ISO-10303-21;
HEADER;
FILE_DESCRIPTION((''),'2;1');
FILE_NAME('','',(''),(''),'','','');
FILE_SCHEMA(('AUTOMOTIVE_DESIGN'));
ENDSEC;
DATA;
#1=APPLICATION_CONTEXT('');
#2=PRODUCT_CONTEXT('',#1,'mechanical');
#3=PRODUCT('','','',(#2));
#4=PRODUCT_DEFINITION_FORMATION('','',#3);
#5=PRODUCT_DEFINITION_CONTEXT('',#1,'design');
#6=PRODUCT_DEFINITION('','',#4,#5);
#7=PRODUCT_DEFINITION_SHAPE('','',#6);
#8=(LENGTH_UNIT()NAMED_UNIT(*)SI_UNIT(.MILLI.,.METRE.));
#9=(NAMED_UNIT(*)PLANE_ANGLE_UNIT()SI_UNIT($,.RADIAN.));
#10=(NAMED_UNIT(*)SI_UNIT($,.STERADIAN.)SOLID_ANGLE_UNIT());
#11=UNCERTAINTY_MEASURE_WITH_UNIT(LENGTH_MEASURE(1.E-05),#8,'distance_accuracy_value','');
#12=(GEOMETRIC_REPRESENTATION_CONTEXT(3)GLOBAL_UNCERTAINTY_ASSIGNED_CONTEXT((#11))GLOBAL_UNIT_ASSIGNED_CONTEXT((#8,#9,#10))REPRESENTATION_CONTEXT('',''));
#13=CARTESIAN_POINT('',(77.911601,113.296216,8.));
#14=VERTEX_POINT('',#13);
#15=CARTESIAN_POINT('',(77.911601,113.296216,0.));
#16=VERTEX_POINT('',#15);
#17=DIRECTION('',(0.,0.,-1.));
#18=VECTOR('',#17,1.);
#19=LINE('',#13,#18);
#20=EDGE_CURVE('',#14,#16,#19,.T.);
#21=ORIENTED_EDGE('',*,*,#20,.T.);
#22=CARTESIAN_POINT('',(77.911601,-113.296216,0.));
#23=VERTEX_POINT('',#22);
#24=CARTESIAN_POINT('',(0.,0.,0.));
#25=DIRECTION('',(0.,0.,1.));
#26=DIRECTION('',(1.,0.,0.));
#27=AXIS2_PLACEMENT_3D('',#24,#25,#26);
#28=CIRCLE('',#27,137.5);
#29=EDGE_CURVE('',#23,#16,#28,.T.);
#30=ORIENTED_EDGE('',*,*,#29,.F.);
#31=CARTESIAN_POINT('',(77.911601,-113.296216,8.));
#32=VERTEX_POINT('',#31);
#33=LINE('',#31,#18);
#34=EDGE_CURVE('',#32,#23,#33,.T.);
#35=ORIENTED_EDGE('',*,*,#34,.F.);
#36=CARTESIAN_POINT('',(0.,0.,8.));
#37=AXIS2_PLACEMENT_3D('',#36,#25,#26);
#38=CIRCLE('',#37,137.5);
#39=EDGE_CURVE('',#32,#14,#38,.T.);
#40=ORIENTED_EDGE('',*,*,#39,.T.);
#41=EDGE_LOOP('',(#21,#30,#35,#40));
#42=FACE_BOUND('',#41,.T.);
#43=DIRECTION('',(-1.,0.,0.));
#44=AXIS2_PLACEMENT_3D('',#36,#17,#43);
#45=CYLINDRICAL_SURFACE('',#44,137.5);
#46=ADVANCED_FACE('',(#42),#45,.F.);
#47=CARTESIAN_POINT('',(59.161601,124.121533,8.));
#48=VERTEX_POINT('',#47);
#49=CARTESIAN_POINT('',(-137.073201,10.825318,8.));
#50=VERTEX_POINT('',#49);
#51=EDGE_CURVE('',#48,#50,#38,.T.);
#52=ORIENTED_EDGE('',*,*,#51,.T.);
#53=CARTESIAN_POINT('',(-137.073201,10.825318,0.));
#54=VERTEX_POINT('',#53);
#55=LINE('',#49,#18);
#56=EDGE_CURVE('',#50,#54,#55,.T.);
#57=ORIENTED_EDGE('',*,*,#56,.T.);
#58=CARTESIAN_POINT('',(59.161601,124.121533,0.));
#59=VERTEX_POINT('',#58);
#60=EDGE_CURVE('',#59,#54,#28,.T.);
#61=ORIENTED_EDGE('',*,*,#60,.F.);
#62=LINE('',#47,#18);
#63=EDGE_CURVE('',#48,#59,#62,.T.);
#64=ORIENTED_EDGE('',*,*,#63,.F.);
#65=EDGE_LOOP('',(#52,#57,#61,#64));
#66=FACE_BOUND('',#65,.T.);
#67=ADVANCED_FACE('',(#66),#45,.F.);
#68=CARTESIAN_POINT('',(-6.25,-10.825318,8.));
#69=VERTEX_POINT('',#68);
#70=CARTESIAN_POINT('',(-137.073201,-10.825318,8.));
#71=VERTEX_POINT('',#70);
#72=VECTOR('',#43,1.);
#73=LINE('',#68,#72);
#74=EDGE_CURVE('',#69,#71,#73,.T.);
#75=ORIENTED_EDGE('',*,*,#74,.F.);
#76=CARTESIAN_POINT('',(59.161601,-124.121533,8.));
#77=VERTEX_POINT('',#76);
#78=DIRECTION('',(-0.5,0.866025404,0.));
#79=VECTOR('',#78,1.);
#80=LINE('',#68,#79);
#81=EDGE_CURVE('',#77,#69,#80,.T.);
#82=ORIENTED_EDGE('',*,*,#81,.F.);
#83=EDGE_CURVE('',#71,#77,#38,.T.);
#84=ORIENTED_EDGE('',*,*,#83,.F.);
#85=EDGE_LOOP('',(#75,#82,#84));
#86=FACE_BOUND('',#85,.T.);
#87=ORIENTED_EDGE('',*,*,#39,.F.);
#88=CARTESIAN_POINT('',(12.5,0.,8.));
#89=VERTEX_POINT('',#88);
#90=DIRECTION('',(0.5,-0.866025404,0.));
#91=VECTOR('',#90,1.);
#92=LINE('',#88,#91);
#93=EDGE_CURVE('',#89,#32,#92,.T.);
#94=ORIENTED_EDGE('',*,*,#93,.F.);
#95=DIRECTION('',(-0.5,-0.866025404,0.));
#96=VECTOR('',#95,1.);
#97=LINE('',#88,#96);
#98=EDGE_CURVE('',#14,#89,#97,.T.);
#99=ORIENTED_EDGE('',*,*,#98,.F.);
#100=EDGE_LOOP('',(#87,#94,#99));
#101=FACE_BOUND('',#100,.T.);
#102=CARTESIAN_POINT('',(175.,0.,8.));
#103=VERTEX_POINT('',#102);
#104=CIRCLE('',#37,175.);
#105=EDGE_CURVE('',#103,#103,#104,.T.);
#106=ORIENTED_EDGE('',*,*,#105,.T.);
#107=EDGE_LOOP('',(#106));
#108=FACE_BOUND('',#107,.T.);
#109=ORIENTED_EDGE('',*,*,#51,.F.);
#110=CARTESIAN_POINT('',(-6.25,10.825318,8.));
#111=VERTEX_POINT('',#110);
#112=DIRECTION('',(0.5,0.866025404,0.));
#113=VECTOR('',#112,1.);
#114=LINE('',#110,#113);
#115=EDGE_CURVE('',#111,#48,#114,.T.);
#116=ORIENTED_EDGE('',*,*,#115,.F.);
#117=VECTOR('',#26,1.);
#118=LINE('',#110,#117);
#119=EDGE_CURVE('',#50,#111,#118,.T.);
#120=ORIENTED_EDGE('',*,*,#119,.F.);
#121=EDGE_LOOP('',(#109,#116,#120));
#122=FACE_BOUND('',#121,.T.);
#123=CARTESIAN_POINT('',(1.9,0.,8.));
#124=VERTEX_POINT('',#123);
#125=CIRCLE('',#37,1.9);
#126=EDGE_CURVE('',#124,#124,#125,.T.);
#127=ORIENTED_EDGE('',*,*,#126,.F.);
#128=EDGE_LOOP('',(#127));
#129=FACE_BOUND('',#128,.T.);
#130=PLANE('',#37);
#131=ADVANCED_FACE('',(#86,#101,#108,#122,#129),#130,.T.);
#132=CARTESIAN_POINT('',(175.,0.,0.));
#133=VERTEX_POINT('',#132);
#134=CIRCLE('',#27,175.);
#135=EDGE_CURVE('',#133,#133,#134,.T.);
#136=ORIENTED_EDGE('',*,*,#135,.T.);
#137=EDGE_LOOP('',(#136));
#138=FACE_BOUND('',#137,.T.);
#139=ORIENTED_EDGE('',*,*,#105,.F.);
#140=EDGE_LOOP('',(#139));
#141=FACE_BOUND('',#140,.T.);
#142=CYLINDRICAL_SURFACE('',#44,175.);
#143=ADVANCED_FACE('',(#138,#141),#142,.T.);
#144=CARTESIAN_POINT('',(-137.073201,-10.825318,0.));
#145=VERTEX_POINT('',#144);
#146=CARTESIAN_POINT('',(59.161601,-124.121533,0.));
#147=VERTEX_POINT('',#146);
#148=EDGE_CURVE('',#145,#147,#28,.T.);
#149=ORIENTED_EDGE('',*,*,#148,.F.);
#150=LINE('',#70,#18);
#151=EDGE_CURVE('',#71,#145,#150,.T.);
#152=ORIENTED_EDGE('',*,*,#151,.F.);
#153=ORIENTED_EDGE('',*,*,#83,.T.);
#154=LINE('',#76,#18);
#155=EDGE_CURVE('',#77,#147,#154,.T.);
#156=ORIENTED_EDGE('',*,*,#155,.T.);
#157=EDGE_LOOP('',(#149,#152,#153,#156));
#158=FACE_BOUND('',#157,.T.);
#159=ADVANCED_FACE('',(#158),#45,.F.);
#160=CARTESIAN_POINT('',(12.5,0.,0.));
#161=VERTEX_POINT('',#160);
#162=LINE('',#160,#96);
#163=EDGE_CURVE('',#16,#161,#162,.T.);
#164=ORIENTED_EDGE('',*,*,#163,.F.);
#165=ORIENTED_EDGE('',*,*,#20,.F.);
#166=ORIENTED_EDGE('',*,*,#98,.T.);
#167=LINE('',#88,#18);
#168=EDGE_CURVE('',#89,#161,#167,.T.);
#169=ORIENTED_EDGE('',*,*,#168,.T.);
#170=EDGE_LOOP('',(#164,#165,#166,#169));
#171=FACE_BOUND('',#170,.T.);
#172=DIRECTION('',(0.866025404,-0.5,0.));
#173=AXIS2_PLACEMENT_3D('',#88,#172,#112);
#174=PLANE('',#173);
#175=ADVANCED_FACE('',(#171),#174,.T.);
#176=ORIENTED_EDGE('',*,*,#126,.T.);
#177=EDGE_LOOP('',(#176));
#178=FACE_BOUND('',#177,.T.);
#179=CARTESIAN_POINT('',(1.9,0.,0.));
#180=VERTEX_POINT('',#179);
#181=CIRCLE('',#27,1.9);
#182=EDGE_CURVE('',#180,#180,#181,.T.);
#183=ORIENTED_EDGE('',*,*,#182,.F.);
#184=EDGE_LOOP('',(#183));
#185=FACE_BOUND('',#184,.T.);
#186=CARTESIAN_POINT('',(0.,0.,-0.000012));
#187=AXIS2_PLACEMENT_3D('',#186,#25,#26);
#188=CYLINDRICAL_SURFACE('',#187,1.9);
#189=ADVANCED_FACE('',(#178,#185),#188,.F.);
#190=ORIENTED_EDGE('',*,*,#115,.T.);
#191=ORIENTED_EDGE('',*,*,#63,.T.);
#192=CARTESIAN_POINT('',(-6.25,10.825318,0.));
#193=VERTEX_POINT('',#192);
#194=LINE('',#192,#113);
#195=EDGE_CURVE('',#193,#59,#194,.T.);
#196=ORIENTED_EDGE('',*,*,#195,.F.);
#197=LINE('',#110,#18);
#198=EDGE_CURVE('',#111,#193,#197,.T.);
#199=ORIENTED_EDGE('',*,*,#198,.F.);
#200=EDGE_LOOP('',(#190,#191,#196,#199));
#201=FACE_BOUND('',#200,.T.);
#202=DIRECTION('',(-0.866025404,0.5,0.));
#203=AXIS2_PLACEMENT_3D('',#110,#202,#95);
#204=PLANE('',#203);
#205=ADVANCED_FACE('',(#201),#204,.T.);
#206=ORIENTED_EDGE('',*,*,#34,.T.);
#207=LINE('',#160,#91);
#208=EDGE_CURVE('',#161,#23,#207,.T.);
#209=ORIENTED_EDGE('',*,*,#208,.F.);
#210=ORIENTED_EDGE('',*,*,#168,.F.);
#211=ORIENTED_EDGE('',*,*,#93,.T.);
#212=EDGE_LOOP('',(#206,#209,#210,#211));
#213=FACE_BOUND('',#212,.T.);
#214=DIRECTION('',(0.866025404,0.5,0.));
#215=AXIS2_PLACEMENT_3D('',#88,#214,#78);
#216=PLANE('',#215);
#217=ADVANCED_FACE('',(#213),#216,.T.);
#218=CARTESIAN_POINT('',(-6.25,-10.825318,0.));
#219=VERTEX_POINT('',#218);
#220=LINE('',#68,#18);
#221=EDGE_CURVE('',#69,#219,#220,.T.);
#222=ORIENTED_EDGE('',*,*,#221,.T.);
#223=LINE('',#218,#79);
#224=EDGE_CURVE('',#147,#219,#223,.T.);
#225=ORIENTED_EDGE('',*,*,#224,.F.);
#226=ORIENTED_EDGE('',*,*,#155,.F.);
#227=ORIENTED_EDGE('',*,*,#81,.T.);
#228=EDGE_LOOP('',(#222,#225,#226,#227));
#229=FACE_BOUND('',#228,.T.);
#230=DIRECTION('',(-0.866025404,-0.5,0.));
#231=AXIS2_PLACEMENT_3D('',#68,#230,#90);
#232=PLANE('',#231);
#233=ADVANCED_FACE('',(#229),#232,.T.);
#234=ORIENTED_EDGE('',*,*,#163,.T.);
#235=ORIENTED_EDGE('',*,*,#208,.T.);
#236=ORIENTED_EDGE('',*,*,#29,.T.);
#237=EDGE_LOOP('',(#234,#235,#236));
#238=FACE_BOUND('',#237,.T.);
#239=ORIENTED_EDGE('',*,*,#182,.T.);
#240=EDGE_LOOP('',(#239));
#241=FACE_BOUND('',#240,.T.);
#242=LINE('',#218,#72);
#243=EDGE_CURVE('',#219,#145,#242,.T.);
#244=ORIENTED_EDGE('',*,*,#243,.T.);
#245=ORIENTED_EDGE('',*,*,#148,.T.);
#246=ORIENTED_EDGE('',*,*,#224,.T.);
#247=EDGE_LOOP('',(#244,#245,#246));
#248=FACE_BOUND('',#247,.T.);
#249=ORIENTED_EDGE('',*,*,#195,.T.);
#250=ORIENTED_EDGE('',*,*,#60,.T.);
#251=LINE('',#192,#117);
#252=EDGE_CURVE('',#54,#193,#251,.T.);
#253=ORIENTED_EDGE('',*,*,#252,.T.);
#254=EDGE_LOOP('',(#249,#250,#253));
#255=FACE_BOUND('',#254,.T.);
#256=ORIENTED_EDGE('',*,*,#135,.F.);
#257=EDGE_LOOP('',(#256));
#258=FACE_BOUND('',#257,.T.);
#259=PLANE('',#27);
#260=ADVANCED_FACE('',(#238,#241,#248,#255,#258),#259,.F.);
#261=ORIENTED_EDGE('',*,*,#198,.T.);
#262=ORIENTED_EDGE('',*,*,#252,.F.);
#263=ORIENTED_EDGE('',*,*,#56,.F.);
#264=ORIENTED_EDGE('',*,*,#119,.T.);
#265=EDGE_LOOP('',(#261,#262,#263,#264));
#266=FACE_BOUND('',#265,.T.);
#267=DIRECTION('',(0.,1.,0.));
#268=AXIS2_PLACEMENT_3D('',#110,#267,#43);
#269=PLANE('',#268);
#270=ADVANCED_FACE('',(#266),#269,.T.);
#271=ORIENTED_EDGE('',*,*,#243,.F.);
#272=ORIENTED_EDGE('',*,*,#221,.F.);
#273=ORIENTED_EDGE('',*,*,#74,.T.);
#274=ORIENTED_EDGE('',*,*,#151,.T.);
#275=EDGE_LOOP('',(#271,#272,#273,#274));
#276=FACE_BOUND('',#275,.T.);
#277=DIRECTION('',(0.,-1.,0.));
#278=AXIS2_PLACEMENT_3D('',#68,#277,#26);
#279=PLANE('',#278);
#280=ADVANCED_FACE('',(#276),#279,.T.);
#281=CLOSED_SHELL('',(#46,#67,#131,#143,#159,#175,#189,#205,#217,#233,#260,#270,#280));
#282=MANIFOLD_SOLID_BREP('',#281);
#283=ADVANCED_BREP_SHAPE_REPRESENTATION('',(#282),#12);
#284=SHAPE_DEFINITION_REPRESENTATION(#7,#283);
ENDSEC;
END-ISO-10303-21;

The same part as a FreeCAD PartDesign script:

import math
import FreeCAD as App
import Part
import Sketcher
from FreeCAD import Vector
Q = App.Units.Quantity

doc = App.newDocument("Part")
body = doc.addObject("PartDesign::Body", "Body")

sketch1 = body.newObject("Sketcher::SketchObject", "Sketch")
sketch1.AttachmentSupport = (doc.getObject("XY_Plane"), [""])
sketch1.MapMode = "FlatFace"
sketch1.addGeometry(Part.Circle(Vector(0, 0, 0), Vector(0, 0, 1), 175), False)
sketch1.addGeometry(Part.LineSegment(Vector(-137.073201, -10.825318, 0), Vector(-6.25, -10.825318, 0)), False)
sketch1.addGeometry(Part.LineSegment(Vector(-6.25, -10.825318, 0), Vector(59.161601, -124.121533, 0)), False)
sketch1.addGeometry(Part.ArcOfCircle(Part.Circle(Vector(0, 0, 0), Vector(0, 0, 1), 137.5), math.radians(-175.484454), math.radians(-64.515546)), False)
sketch1.addGeometry(Part.LineSegment(Vector(59.161601, 124.121533, 0), Vector(-6.25, 10.825318, 0)), False)
sketch1.addGeometry(Part.LineSegment(Vector(-6.25, 10.825318, 0), Vector(-137.073201, 10.825318, 0)), False)
sketch1.addGeometry(Part.ArcOfCircle(Part.Circle(Vector(0, 0, 0), Vector(0, 0, 1), 137.5), math.radians(64.515546), math.radians(175.484454)), False)
sketch1.addGeometry(Part.LineSegment(Vector(77.911601, -113.296216, 0), Vector(12.5, 0, 0)), False)
sketch1.addGeometry(Part.LineSegment(Vector(12.5, 0, 0), Vector(77.911601, 113.296216, 0)), False)
sketch1.addGeometry(Part.ArcOfCircle(Part.Circle(Vector(0, 0, 0), Vector(0, 0, 1), 137.5), math.radians(-55.484454), math.radians(55.484454)), False)
sketch1.addConstraint(Sketcher.Constraint("Coincident", 1, 2, 2, 1))
sketch1.addConstraint(Sketcher.Constraint("Coincident", 2, 2, 3, 2))
sketch1.addConstraint(Sketcher.Constraint("Coincident", 3, 1, 1, 1))
sketch1.addConstraint(Sketcher.Constraint("Coincident", 4, 2, 5, 1))
sketch1.addConstraint(Sketcher.Constraint("Coincident", 5, 2, 6, 2))
sketch1.addConstraint(Sketcher.Constraint("Coincident", 6, 1, 4, 1))
sketch1.addConstraint(Sketcher.Constraint("Coincident", 7, 2, 8, 1))
sketch1.addConstraint(Sketcher.Constraint("Coincident", 8, 2, 9, 2))
sketch1.addConstraint(Sketcher.Constraint("Coincident", 9, 1, 7, 1))
sketch1.addConstraint(Sketcher.Constraint("Horizontal", 1))
sketch1.addConstraint(Sketcher.Constraint("Horizontal", 5))
sketch1.addConstraint(Sketcher.Constraint("Coincident", 0, 3, -1, 1))
sketch1.addConstraint(Sketcher.Constraint("Coincident", 3, 3, -1, 1))
sketch1.addConstraint(Sketcher.Constraint("Coincident", 6, 3, -1, 1))
sketch1.addConstraint(Sketcher.Constraint("Coincident", 9, 3, -1, 1))
sketch1.addConstraint(Sketcher.Constraint("Equal", 3, 6))
sketch1.addConstraint(Sketcher.Constraint("Equal", 6, 9))
sketch1.addConstraint(Sketcher.Constraint("Symmetric", 1, 2, 4, 2, -1))
sketch1.addConstraint(Sketcher.Constraint("PointOnObject", 7, 2, -1))
sketch1.addConstraint(Sketcher.Constraint("Parallel", 2, 7))
sketch1.addConstraint(Sketcher.Constraint("Parallel", 4, 8))
sketch1.addConstraint(Sketcher.Constraint("Vertical", 2, 2, 6, 1))
sketch1.addConstraint(Sketcher.Constraint("Equal", 4, 7))
sketch1.addConstraint(Sketcher.Constraint("Diameter", 0, Q("350 mm")))
sketch1.addConstraint(Sketcher.Constraint("Radius", 3, Q("137.5 mm")))
sketch1.addConstraint(Sketcher.Constraint("Angle", 2, Q("-60 deg")))
sketch1.addConstraint(Sketcher.Constraint("DistanceX", -1, 1, 7, 2, Q("12.5 mm")))
sketch1.addConstraint(Sketcher.Constraint("DistanceX", 1, 2, -1, 1, Q("6.25 mm")))
pad1 = body.newObject("PartDesign::Pad", "Pad")
pad1.Profile = sketch1
pad1.Length = 8

sketch2 = body.newObject("Sketcher::SketchObject", "Sketch001")
sketch2.AttachmentSupport = (doc.getObject("XY_Plane"), [""])
sketch2.MapMode = "FlatFace"
sketch2.addGeometry(Part.Circle(Vector(0, 0, 0), Vector(0, 0, 1), 1.9), False)
sketch2.addConstraint(Sketcher.Constraint("Coincident", 0, 3, -1, 1))
sketch2.addConstraint(Sketcher.Constraint("Diameter", 0, Q("3.8 mm")))
pocket1 = body.newObject("PartDesign::Pocket", "Pocket")
pocket1.Profile = sketch2
pocket1.Type = "ThroughAll"
pocket1.Midplane = True

doc.recompute()
